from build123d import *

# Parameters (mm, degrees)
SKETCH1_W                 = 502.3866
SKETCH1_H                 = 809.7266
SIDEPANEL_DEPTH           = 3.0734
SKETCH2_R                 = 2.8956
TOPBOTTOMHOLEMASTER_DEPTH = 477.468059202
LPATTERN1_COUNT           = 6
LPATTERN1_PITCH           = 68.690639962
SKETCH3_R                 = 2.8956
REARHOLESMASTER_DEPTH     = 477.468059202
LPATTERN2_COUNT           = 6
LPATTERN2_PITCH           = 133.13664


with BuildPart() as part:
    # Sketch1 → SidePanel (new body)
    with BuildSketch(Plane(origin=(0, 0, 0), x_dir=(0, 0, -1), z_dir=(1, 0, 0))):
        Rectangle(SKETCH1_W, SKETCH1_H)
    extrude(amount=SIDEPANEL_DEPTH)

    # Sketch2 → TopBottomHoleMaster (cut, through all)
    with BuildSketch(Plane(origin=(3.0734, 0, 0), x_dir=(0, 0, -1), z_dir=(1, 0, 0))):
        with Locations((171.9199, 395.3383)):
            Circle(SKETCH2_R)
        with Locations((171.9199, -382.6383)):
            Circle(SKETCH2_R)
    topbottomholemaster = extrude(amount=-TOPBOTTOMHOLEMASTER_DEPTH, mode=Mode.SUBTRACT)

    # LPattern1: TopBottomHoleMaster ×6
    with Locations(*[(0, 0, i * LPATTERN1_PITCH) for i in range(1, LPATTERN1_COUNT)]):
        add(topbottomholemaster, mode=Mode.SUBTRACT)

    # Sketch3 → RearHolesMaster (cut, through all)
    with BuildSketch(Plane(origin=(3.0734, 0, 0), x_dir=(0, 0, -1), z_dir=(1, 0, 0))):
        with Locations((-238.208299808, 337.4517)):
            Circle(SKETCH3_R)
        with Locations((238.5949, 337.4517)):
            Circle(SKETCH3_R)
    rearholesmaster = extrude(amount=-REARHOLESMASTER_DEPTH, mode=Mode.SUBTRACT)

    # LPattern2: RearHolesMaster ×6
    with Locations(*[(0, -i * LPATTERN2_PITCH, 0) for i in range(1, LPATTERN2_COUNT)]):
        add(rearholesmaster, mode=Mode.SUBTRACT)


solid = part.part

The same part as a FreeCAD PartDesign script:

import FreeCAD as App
import Part
import Sketcher
Q = App.Units.Quantity

doc = App.newDocument("Part")
body = doc.addObject("PartDesign::Body", "Body")

sketch1 = body.newObject("Sketcher::SketchObject", "Sketch")
sketch1.AttachmentSupport = (doc.getObject("YZ_Plane"), [""])
sketch1.MapMode = "FlatFace"
sketch1.addGeometry([
    Part.LineSegment(App.Vector(405, 251, 0), App.Vector(-405, 251, 0)),
    Part.LineSegment(App.Vector(-405, 251, 0), App.Vector(-405, -251, 0)),
    Part.LineSegment(App.Vector(-405, -251, 0), App.Vector(405, -251, 0)),
    Part.LineSegment(App.Vector(405, -251, 0), App.Vector(405, 251, 0)),
], False)
sketch1.addConstraint([
    Sketcher.Constraint("Coincident", 0, 2, 1, 1),
    Sketcher.Constraint("Coincident", 1, 2, 2, 1),
    Sketcher.Constraint("Coincident", 2, 2, 3, 1),
    Sketcher.Constraint("Coincident", 3, 2, 0, 1),
    Sketcher.Constraint("Horizontal", 0),
    Sketcher.Constraint("Vertical", 1),
    Sketcher.Constraint("Horizontal", 2),
    Sketcher.Constraint("Vertical", 3),
    Sketcher.Constraint("Symmetric", 0, 2, 2, 2, -1, 1),
    Sketcher.Constraint("DistanceX", 0, 2, 0, 1, Q("31.879 in")),
    Sketcher.Constraint("DistanceY", 1, 2, 1, 1, Q("19.779 in")),
])
pad1 = body.newObject("PartDesign::Pad", "Pad")
pad1.Profile = sketch1
pad1.Length = Q("0.121 in")

sketch2 = body.newObject("Sketcher::SketchObject", "Sketch001")
sketch2.AttachmentSupport = (doc.getObject("YZ_Plane"), [""])
sketch2.MapMode = "FlatFace"
sketch2.AttachmentOffset = App.Placement(App.Vector(0, 0, 0.121 * 25.4), App.Rotation())
sketch2.addGeometry([
    Part.Circle(App.Vector(395.3, -171.9, 0), App.Vector(0, 0, 1), 2.9),
    Part.Circle(App.Vector(-382.6, -171.9, 0), App.Vector(0, 0, 1), 2.9),
], False)
sketch2.addConstraint([
    Sketcher.Constraint("Equal", 0, 1),
    Sketcher.Constraint("Horizontal", 0, 3, 1, 3),
    Sketcher.Constraint("Diameter", 0, Q("0.228 in")),
    Sketcher.Constraint("DistanceX", 1, 3, 0, 3, Q("30.629 in")),
    Sketcher.Constraint("DistanceX", -1, 1, 0, 3, Q("15.5645 in")),
    Sketcher.Constraint("DistanceY", 0, 3, -1, 1, Q("6.7685 in")),
])
pocket1 = body.newObject("PartDesign::Pocket", "Pocket")
pocket1.Profile = sketch2
pocket1.Type = "ThroughAll"
doc.recompute()

linearpattern = body.newObject("PartDesign::LinearPattern", "LinearPattern")
linearpattern.Originals = [pocket1]
linearpattern.Direction = (doc.getObject("Z_Axis"), [""])
linearpattern.Mode = "offset"
linearpattern.Offset = 68.69064
linearpattern.Occurrences = 6
body.Tip = linearpattern

sketch3 = body.newObject("Sketcher::SketchObject", "Sketch002")
sketch3.AttachmentSupport = (doc.getObject("YZ_Plane"), [""])
sketch3.MapMode = "FlatFace"
sketch3.AttachmentOffset = App.Placement(App.Vector(0, 0, 0.121 * 25.4), App.Rotation())
sketch3.addGeometry([
    Part.Circle(App.Vector(337.5, 238.2, 0), App.Vector(0, 0, 1), 2.9),
    Part.Circle(App.Vector(337.5, -238.6, 0), App.Vector(0, 0, 1), 2.9),
], False)
sketch3.addConstraint([
    Sketcher.Constraint("Equal", 0, 1),
    Sketcher.Constraint("Vertical", 0, 3, 1, 3),
    Sketcher.Constraint("Diameter", 0, Q("0.228 in")),
    Sketcher.Constraint("DistanceX", -1, 1, 0, 3, Q("13.2855 in")),
    Sketcher.Constraint("DistanceY", 1, 3, -1, 1, Q("9.3935 in")),
    Sketcher.Constraint("DistanceY", -1, 1, 0, 3, 238.2083),
])
pocket2 = body.newObject("PartDesign::Pocket", "Pocket001")
pocket2.Profile = sketch3
pocket2.Type = "ThroughAll"
doc.recompute()

linearpattern2 = body.newObject("PartDesign::LinearPattern", "LinearPattern001")
linearpattern2.Originals = [pocket2]
linearpattern2.Direction = (doc.getObject("Y_Axis"), [""])
linearpattern2.Mode = "offset"
linearpattern2.Offset = Q("5.2416 in")
linearpattern2.Occurrences = 6
linearpattern2.Reversed = True
body.Tip = linearpattern2

doc.recompute()
